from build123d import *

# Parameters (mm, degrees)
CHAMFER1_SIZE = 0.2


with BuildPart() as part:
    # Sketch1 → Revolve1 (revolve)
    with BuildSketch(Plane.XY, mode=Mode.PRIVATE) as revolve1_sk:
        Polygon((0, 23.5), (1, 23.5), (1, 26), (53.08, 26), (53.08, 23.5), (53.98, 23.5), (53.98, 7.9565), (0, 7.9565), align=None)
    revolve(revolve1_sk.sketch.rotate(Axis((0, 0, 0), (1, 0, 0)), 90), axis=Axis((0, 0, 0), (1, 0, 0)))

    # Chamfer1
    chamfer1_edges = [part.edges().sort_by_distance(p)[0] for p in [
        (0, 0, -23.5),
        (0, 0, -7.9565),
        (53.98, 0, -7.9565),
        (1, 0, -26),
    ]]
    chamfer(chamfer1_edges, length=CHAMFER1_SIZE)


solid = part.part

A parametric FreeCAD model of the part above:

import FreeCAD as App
import Part
import Sketcher

V = App.Vector


def edges_at(feature, points):
    """Names of the edges that pass closest to the given points."""
    edges = feature.Shape.Edges
    near = lambda p: min(range(len(edges)), key=lambda i: edges[i].distToShape(Part.Vertex(*p))[0])
    return sorted({f"Edge{near(p) + 1}" for p in points})

doc = App.newDocument("Part")
body = doc.addObject("PartDesign::Body", "Body")

# Sketch on XY plane
sketch1 = doc.addObject("Sketcher::SketchObject", "Sketch")
body.addObject(sketch1)
sketch1.AttachmentSupport = (doc.XY_Plane, [""])
sketch1.MapMode = "FlatFace"
sketch1.addGeometry(Part.LineSegment(V(1, 23.5, 0), V(0, 23.5, 0)), False)
sketch1.addGeometry(Part.LineSegment(V(0, 23.5, 0), V(0, 8, 0)), False)
sketch1.addGeometry(Part.LineSegment(V(0, 8, 0), V(54, 8, 0)), False)
sketch1.addGeometry(Part.LineSegment(V(54, 8, 0), V(54, 23.5, 0)), False)
sketch1.addGeometry(Part.LineSegment(V(54, 23.5, 0), V(53.1, 23.5, 0)), False)
sketch1.addGeometry(Part.LineSegment(V(53.1, 23.5, 0), V(53.1, 26, 0)), False)
sketch1.addGeometry(Part.LineSegment(V(53.1, 26, 0), V(1, 26, 0)), False)
sketch1.addGeometry(Part.LineSegment(V(1, 26, 0), V(1, 23.5, 0)), False)
sketch1.addConstraint(Sketcher.Constraint("Coincident", 0, 2, 1, 1))
sketch1.addConstraint(Sketcher.Constraint("Coincident", 1, 2, 2, 1))
sketch1.addConstraint(Sketcher.Constraint("Coincident", 2, 2, 3, 1))
sketch1.addConstraint(Sketcher.Constraint("Coincident", 3, 2, 4, 1))
sketch1.addConstraint(Sketcher.Constraint("Coincident", 4, 2, 5, 1))
sketch1.addConstraint(Sketcher.Constraint("Coincident", 5, 2, 6, 1))
sketch1.addConstraint(Sketcher.Constraint("Coincident", 6, 2, 7, 1))
sketch1.addConstraint(Sketcher.Constraint("Coincident", 7, 2, 0, 1))
sketch1.addConstraint(Sketcher.Constraint("Horizontal", 0))
sketch1.addConstraint(Sketcher.Constraint("Vertical", 1))
sketch1.addConstraint(Sketcher.Constraint("Horizontal", 2))
sketch1.addConstraint(Sketcher.Constraint("Vertical", 3))
sketch1.addConstraint(Sketcher.Constraint("Horizontal", 4))
sketch1.addConstraint(Sketcher.Constraint("Vertical", 5))
sketch1.addConstraint(Sketcher.Constraint("Horizontal", 6))
sketch1.addConstraint(Sketcher.Constraint("Vertical", 7))
sketch1.addConstraint(Sketcher.Constraint("PointOnObject", 0, 2, -2))
sketch1.addConstraint(Sketcher.Constraint("Horizontal", 0, 2, 3, 2))
sketch1.addConstraint(Sketcher.Constraint("DistanceX", 0, 2, 0, 1, 1.0))
sketch1.addConstraint(Sketcher.Constraint("DistanceX", 4, 2, 4, 1, 0.9))
sketch1.addConstraint(Sketcher.Constraint("DistanceY", 5, 1, 5, 2, 2.5))
sketch1.addConstraint(Sketcher.Constraint("DistanceY", -1, 1, 5, 2, 26.0))
sketch1.addConstraint(Sketcher.Constraint("DistanceX", 2, 1, 2, 2, 53.98))
sketch1.addConstraint(Sketcher.Constraint("DistanceY", 1, 2, 1, 1, 15.5435))
revolution = doc.addObject("PartDesign::Revolution", "Revolution")
body.addObject(revolution)
revolution.Profile = sketch1
revolution.ReferenceAxis = (sketch1, ["H_Axis"])
revolution.Angle = 360
doc.recompute()

chamfer = doc.addObject("PartDesign::Chamfer", "Chamfer")
body.addObject(chamfer)
chamfer.Base = (revolution, edges_at(revolution, [
    (0, 0, -23.5),
    (0, 0, -7.957),
    (53.98, 0, -7.957),
    (1, 0, -26),
]))
chamfer.Size = 0.2

doc.recompute()
